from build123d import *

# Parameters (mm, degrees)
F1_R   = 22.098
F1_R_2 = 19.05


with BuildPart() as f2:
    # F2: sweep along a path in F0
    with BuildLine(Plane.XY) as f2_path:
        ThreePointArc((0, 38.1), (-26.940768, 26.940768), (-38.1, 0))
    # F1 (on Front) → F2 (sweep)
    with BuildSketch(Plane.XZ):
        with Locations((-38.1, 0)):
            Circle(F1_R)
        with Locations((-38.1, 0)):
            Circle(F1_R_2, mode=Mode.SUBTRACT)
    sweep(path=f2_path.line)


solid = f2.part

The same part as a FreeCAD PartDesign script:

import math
import FreeCAD as App
import Part
import Sketcher
Q = App.Units.Quantity

doc = App.newDocument("Part")
body = doc.addObject("PartDesign::Body", "Body")

sketch1 = body.newObject("Sketcher::SketchObject", "Sketch")
sketch1.AttachmentSupport = (doc.getObject("XZ_Plane"), [""])
sketch1.MapMode = "FlatFace"
sketch1.addGeometry(Part.Circle(App.Vector(-38, 0, 0), App.Vector(0, 0, 1), 22), False)
sketch1.addGeometry(Part.Circle(App.Vector(-38, 0, 0), App.Vector(0, 0, 1), 19), False)
sketch1.addConstraint(Sketcher.Constraint("Coincident", 1, 3, 0, 3))
sketch1.addConstraint(Sketcher.Constraint("PointOnObject", 0, 3, -1))
sketch1.addConstraint(Sketcher.Constraint("Diameter", 1, Q("1.5 in")))
sketch1.addConstraint(Sketcher.Constraint("Diameter", 0, Q("1.74 in")))
sketch1.addConstraint(Sketcher.Constraint("DistanceX", 0, 3, -1, 1, Q("1.5 in")))

sketch2 = body.newObject("Sketcher::SketchObject", "Sketch001")
sketch2.AttachmentSupport = (doc.getObject("XY_Plane"), [""])
sketch2.MapMode = "FlatFace"
sketch2.addGeometry(Part.ArcOfCircle(Part.Circle(App.Vector(0, 0, 0), App.Vector(0, 0, 1), 38), math.radians(90), math.radians(180)), False)
sketch2.addConstraint(Sketcher.Constraint("Coincident", 0, 3, -1, 1))
sketch2.addConstraint(Sketcher.Constraint("PointOnObject", 0, 1, -2))
sketch2.addConstraint(Sketcher.Constraint("PointOnObject", 0, 2, -1))
sketch2.addConstraint(Sketcher.Constraint("Radius", 0, Q("1.5 in")))
doc.recompute()

additivepipe = body.newObject("PartDesign::AdditivePipe", "AdditivePipe")
additivepipe.Profile = sketch1
additivepipe.Spine = (sketch2, ["Edge1"])

doc.recompute()
